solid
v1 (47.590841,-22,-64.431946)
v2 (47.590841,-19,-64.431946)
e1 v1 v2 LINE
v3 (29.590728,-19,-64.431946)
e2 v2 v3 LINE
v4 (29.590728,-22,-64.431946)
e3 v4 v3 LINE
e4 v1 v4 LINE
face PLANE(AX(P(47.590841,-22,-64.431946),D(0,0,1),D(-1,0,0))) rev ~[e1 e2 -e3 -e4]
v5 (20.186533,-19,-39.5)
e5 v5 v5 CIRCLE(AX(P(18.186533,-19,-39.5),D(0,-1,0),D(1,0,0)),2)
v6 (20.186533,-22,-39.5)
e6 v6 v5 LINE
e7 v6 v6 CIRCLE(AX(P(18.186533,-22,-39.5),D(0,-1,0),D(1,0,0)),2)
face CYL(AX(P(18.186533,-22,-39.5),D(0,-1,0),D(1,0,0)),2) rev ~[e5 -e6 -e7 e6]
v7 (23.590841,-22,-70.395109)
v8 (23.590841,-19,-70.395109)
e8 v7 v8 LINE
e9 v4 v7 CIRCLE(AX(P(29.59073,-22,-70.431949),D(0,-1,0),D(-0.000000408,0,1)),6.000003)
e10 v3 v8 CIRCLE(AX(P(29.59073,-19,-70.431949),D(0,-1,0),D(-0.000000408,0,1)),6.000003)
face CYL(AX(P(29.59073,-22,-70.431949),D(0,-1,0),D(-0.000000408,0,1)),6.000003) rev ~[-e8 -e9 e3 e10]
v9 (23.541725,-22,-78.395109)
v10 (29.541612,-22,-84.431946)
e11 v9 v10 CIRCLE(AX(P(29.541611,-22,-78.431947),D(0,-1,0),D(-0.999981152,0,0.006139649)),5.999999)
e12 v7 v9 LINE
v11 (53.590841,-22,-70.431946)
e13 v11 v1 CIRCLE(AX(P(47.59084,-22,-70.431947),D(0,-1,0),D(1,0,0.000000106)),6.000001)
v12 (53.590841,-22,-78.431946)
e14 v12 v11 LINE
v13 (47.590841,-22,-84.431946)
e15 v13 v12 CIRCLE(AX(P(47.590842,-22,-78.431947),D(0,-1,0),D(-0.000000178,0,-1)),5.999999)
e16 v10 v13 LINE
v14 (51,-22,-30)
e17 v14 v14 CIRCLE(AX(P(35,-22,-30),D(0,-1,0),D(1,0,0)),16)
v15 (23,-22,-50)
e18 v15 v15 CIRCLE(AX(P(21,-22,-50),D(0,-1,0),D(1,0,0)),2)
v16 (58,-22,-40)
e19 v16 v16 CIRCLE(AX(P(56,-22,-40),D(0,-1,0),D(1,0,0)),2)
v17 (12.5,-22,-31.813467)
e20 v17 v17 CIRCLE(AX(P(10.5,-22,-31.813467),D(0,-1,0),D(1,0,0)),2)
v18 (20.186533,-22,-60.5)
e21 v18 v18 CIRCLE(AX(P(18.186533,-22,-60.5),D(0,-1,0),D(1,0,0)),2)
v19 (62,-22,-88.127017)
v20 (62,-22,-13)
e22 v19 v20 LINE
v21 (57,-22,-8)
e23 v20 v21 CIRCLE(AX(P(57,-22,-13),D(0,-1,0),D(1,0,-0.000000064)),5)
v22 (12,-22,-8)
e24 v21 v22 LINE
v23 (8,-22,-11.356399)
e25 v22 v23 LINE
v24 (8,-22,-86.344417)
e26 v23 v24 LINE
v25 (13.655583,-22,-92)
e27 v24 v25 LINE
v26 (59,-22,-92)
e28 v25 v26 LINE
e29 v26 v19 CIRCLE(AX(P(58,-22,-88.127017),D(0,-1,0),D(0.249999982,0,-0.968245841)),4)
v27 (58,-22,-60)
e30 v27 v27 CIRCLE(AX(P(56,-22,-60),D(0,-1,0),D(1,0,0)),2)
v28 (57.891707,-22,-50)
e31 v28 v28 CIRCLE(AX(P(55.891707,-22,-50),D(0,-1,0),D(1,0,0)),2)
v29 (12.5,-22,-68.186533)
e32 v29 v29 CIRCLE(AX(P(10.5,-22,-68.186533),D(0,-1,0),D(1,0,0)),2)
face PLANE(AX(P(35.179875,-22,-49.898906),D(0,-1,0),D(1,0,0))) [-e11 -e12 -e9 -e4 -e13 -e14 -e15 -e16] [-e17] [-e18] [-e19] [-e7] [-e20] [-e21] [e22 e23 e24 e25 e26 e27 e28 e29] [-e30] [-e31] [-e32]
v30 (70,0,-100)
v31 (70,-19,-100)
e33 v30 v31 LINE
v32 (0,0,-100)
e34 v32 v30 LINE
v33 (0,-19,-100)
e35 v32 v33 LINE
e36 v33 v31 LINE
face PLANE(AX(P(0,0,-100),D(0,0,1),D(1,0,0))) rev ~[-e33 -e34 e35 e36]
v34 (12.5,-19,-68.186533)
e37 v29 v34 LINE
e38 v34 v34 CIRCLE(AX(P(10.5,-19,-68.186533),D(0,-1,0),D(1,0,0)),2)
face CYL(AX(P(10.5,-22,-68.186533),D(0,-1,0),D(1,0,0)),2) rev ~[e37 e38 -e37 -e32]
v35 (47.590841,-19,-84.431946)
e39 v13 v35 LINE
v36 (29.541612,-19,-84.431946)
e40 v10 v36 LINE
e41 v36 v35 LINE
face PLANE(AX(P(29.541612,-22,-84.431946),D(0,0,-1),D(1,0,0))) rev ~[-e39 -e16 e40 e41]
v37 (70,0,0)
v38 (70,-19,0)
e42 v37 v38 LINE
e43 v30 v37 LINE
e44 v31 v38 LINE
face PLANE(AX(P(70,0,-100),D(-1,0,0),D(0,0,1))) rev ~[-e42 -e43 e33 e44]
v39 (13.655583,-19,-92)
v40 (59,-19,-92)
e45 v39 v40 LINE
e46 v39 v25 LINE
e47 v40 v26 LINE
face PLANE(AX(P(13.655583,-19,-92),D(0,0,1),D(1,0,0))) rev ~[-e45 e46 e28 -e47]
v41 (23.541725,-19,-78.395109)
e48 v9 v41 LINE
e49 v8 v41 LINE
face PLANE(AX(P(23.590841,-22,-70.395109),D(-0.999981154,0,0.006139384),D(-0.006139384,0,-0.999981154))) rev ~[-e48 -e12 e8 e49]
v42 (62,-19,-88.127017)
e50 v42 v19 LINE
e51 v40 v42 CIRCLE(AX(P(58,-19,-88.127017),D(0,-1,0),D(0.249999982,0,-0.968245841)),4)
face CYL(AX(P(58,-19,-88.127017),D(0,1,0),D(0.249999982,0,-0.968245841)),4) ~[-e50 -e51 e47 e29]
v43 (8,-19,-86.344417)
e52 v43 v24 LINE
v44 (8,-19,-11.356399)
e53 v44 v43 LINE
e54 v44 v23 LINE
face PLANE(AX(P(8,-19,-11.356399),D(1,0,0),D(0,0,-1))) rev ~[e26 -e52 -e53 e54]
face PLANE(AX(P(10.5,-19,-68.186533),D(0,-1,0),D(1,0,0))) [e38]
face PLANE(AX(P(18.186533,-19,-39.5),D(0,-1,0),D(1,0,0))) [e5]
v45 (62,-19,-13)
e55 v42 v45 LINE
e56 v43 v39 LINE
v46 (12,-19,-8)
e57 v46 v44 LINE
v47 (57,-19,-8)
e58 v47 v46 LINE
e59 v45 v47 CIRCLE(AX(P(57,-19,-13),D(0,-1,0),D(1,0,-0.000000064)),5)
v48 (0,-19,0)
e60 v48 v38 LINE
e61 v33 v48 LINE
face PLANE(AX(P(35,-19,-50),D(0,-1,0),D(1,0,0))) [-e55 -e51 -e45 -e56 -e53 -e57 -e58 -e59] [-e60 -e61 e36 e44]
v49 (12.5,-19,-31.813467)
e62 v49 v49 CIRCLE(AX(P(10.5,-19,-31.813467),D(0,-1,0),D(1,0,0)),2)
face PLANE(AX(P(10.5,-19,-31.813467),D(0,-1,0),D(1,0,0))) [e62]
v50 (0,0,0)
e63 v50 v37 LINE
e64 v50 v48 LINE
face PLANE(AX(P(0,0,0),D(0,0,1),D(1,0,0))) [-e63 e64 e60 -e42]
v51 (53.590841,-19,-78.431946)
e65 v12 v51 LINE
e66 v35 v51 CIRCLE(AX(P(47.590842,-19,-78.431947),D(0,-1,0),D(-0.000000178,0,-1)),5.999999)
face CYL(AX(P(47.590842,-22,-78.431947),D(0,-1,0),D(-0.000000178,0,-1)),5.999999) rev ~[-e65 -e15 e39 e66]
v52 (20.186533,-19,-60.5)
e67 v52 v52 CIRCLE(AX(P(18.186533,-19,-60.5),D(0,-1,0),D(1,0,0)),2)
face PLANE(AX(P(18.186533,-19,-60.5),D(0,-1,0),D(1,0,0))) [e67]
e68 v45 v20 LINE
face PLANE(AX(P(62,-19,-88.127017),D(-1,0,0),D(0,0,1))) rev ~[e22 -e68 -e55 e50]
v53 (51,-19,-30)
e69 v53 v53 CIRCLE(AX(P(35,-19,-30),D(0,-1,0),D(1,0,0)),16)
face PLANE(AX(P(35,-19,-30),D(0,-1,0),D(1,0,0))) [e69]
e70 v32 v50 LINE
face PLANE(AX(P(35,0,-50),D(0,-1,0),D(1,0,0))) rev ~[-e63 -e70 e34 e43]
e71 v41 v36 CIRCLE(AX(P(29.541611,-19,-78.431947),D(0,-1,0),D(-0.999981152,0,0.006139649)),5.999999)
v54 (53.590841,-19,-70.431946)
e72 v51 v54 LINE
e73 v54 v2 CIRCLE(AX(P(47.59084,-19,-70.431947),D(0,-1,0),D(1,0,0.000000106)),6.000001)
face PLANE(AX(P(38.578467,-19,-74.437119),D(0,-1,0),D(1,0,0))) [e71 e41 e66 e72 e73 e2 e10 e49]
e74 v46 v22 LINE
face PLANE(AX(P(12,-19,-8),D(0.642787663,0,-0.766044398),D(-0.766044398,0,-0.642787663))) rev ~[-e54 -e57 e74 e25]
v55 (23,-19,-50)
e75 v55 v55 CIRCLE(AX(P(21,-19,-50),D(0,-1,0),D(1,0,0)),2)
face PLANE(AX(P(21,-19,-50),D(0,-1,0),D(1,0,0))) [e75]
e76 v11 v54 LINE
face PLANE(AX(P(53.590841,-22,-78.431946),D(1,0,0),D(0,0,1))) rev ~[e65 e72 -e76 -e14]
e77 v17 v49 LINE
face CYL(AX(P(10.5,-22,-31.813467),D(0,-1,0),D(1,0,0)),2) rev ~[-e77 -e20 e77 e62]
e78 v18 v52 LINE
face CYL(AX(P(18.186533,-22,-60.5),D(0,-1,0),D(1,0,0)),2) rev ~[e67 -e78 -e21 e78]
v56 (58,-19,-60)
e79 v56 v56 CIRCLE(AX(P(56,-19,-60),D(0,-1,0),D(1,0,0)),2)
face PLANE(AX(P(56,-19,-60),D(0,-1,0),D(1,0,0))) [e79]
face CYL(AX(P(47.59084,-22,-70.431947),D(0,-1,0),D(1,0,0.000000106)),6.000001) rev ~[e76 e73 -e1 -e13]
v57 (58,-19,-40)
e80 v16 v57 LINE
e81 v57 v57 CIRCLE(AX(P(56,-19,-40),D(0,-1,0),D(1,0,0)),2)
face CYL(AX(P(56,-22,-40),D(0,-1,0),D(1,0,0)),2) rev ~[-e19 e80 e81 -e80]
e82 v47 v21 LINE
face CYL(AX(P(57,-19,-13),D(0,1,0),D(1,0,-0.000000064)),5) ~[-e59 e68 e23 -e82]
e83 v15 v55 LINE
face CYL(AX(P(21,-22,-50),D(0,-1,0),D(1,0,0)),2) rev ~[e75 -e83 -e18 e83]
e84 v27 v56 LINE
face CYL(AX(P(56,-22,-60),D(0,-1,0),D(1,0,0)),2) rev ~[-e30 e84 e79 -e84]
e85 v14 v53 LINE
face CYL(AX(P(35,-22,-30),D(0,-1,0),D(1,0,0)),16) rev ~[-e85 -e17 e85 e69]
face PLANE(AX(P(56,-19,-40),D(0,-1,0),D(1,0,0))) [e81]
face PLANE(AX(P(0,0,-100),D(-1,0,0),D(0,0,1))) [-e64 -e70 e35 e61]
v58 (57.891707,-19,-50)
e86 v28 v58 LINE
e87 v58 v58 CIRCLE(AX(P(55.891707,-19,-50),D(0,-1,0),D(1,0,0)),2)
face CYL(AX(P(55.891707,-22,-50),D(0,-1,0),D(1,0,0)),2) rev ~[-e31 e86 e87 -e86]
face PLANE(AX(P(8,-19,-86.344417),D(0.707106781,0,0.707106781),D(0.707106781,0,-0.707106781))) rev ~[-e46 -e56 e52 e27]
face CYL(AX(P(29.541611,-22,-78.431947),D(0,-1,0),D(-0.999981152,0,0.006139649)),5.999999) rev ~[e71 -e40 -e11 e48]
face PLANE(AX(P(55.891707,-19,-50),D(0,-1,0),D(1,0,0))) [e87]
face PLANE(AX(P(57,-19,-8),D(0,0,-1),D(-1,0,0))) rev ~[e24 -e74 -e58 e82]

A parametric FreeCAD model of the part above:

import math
import FreeCAD as App
import Part
import Sketcher

V = App.Vector
Q = App.Units.Quantity


def add_polygon(sketch, points):
    """Adds a closed chain of lines whose ends are joined by coincident constraints."""
    first, n = sketch.GeometryCount, len(points)
    for a, b in zip(points, points[1:] + points[:1]):
        sketch.addGeometry(Part.LineSegment(App.Vector(*a, 0), App.Vector(*b, 0)), False)
    for i in range(n):
        sketch.addConstraint(Sketcher.Constraint("Coincident", first + i, 2, first + (i + 1) % n, 1))

doc = App.newDocument("Part")
body = doc.addObject("PartDesign::Body", "Body")

# Sketch on XZ plane
sketch1 = body.newObject("Sketcher::SketchObject", "Sketch")
sketch1.AttachmentSupport = (doc.getObject("XZ_Plane"), [""])
sketch1.MapMode = "FlatFace"
add_polygon(sketch1, [(0, 0), (0, -100), (70, -100), (70, 0)])  # lines 0-3
sketch1.addConstraint([
    Sketcher.Constraint("Vertical", 0),
    Sketcher.Constraint("Horizontal", 1),
    Sketcher.Constraint("Vertical", 2),
    Sketcher.Constraint("Horizontal", 3),
    Sketcher.Constraint("Coincident", 3, 2, -1, 1),
    Sketcher.Constraint("DistanceX", 1, 1, 1, 2, 70.0),
    Sketcher.Constraint("DistanceY", 0, 2, 0, 1, 100.0),
])
pad1 = body.newObject("PartDesign::Pad", "Pad")
pad1.Profile = sketch1
pad1.Length = 19

# Sketch on XZ plane
sketch2 = body.newObject("Sketcher::SketchObject", "Sketch001")
sketch2.AttachmentSupport = (doc.getObject("XZ_Plane"), [""])
sketch2.MapMode = "FlatFace"
sketch2.AttachmentOffset = App.Placement(V(0, 0, 19), App.Rotation())
sketch2.addGeometry([
    Part.LineSegment(V(57, -8, 0), V(12, -8, 0)),  # 0
    Part.LineSegment(V(12, -8, 0), V(8, -11.4, 0)),  # 1
    Part.LineSegment(V(8, -11.4, 0), V(8, -86.3, 0)),  # 2
    Part.LineSegment(V(8, -86.3, 0), V(13.7, -92, 0)),  # 3
    Part.LineSegment(V(13.7, -92, 0), V(59, -92, 0)),  # 4
    Part.ArcOfCircle(Part.Circle(V(58, -88.1, 0), V(0, 0, 1), 4), math.radians(-76), math.radians(0)),  # 5
    Part.LineSegment(V(62, -88.1, 0), V(62, -13, 0)),  # 6
    Part.ArcOfCircle(Part.Circle(V(57, -13, 0), V(0, 0, 1), 5), math.radians(0), math.radians(90)),  # 7
], False)
sketch2.addConstraint([
    Sketcher.Constraint("Coincident", 0, 2, 1, 1),
    Sketcher.Constraint("Coincident", 1, 2, 2, 1),
    Sketcher.Constraint("Coincident", 2, 2, 3, 1),
    Sketcher.Constraint("Coincident", 3, 2, 4, 1),
    Sketcher.Constraint("Coincident", 4, 2, 5, 1),
    Sketcher.Constraint("Tangent", 5, 2, 6, 1),
    Sketcher.Constraint("Tangent", 6, 2, 7, 1),
    Sketcher.Constraint("Tangent", 7, 2, 0, 1),
    Sketcher.Constraint("Horizontal", 0),
    Sketcher.Constraint("Vertical", 2),
    Sketcher.Constraint("Horizontal", 4),
    Sketcher.Constraint("Vertical", 6),
    Sketcher.Constraint("Radius", 5, 4.0),
    Sketcher.Constraint("Radius", 7, 5.0),
    Sketcher.Constraint("DistanceX", 0, 2, 0, 1, 45.0),
    Sketcher.Constraint("Angle", 1, Q("-139.999996 deg")),
    Sketcher.Constraint("Angle", 3, Q("-45 deg")),
    Sketcher.Constraint("DistanceX", -1, 1, 5, 3, 58.0),
    Sketcher.Constraint("DistanceY", 7, 3, -1, 1, 13.0),
    Sketcher.Constraint("DistanceX", -1, 1, 1, 2, 8.0),
    Sketcher.Constraint("DistanceY", 3, 2, -1, 1, 92.0),
    Sketcher.Constraint("DistanceX", -1, 1, 4, 2, 59.0),
    Sketcher.Constraint("DistanceY", 2, 2, 2, 1, 74.988018),
])
pad2 = body.newObject("PartDesign::Pad", "Pad001")
pad2.Profile = sketch2
pad2.Length = 3

# Sketch on XZ plane
sketch3 = body.newObject("Sketcher::SketchObject", "Sketch002")
sketch3.AttachmentSupport = (doc.getObject("XZ_Plane"), [""])
sketch3.MapMode = "FlatFace"
sketch3.AttachmentOffset = App.Placement(V(0, 0, 22), App.Rotation())
sketch3.addGeometry(Part.Circle(V(35, -30, 0), V(0, 0, 1), 16), False)
sketch3.addConstraint([
    Sketcher.Constraint("Diameter", 0, 32.0),
    Sketcher.Constraint("DistanceX", -1, 1, 0, 3, 35.0),
    Sketcher.Constraint("DistanceY", 0, 3, -1, 1, 30.0),
])
pocket1 = body.newObject("PartDesign::Pocket", "Pocket")
pocket1.Profile = sketch3
pocket1.Length = 3

# Sketch on XZ plane
sketch4 = body.newObject("Sketcher::SketchObject", "Sketch003")
sketch4.AttachmentSupport = (doc.getObject("XZ_Plane"), [""])
sketch4.MapMode = "FlatFace"
sketch4.AttachmentOffset = App.Placement(V(0, 0, 22), App.Rotation())
sketch4.addGeometry([
    Part.LineSegment(V(48, -64, 0), V(30, -64, 0)),  # 0
    Part.ArcOfCircle(Part.Circle(V(30, -70, 0), V(0, 0, 1), 6), math.radians(90), math.radians(180)),  # 1
    Part.LineSegment(V(24, -70, 0), V(24, -78, 0)),  # 2
    Part.ArcOfCircle(Part.Circle(V(30, -78, 0), V(0, 0, 1), 6), math.radians(180), math.radians(270)),  # 3
    Part.LineSegment(V(30, -84, 0), V(48, -84, 0)),  # 4
    Part.ArcOfCircle(Part.Circle(V(48, -78, 0), V(0, 0, 1), 6), math.radians(-90), math.radians(0)),  # 5
    Part.LineSegment(V(54, -78, 0), V(54, -70, 0)),  # 6
    Part.ArcOfCircle(Part.Circle(V(48, -70, 0), V(0, 0, 1), 6), math.radians(0), math.radians(90)),  # 7
], False)
sketch4.addConstraint([
    Sketcher.Constraint("Tangent", 0, 2, 1, 1),
    Sketcher.Constraint("Tangent", 1, 2, 2, 1),
    Sketcher.Constraint("Tangent", 2, 2, 3, 1),
    Sketcher.Constraint("Tangent", 3, 2, 4, 1),
    Sketcher.Constraint("Tangent", 4, 2, 5, 1),
    Sketcher.Constraint("Tangent", 5, 2, 6, 1),
    Sketcher.Constraint("Tangent", 6, 2, 7, 1),
    Sketcher.Constraint("Tangent", 7, 2, 0, 1),
    Sketcher.Constraint("Horizontal", 0),
    Sketcher.Constraint("Horizontal", 4),
    Sketcher.Constraint("Vertical", 6),
    Sketcher.Constraint("Equal", 3, 5),
    Sketcher.Constraint("Equal", 5, 7),
    Sketcher.Constraint("Horizontal", 1, 3, 7, 3),
    Sketcher.Constraint("Radius", 3, 5.999999),
    Sketcher.Constraint("DistanceY", 6, 1, 6, 2, 8.0),
    Sketcher.Constraint("DistanceX", 1, 2, 7, 3, 23.999999),
    Sketcher.Constraint("DistanceX", 4, 1, 4, 2, 18.049229),
    Sketcher.Constraint("DistanceX", -1, 1, 1, 3, 29.59073),
    Sketcher.Constraint("DistanceY", 1, 3, -1, 1, 70.431949),
])
pocket2 = body.newObject("PartDesign::Pocket", "Pocket001")
pocket2.Profile = sketch4
pocket2.Length = 3

# Sketch on XZ plane
sketch5 = body.newObject("Sketcher::SketchObject", "Sketch004")
sketch5.AttachmentSupport = (doc.getObject("XZ_Plane"), [""])
sketch5.MapMode = "FlatFace"
sketch5.AttachmentOffset = App.Placement(V(0, 0, 22), App.Rotation())
sketch5.addGeometry([
    Part.Circle(V(10.5, -31.8, 0), V(0, 0, 1), 2),  # 0
    Part.Circle(V(18.2, -39.5, 0), V(0, 0, 1), 2),  # 1
    Part.Circle(V(21, -50, 0), V(0, 0, 1), 2),  # 2
    Part.Circle(V(18.2, -60.5, 0), V(0, 0, 1), 2),  # 3
    Part.Circle(V(10.5, -68.2, 0), V(0, 0, 1), 2),  # 4
], False)
sketch5.addConstraint([
    Sketcher.Constraint("Equal", 0, 1),
    Sketcher.Constraint("Equal", 1, 2),
    Sketcher.Constraint("Equal", 2, 3),
    Sketcher.Constraint("Equal", 3, 4),
    Sketcher.Constraint("Vertical", 1, 3, 3, 3),
    Sketcher.Constraint("Vertical", 0, 3, 4, 3),
    Sketcher.Constraint("Diameter", 0, 4.0),
    Sketcher.Constraint("DistanceX", -1, 1, 2, 3, 21.0),
    Sketcher.Constraint("DistanceY", 2, 3, -1, 1, 50.0),
    Sketcher.Constraint("DistanceY", 3, 3, 1, 3, 21.0),
    Sketcher.Constraint("DistanceX", -1, 1, 0, 3, 10.5),
    Sketcher.Constraint("DistanceY", 1, 3, -1, 1, 39.5),
    Sketcher.Constraint("DistanceY", 0, 3, -1, 1, 31.813467),
    Sketcher.Constraint("DistanceX", -1, 1, 1, 3, 18.186533),
    Sketcher.Constraint("DistanceY", 4, 3, -1, 1, 68.186533),
])
pocket3 = body.newObject("PartDesign::Pocket", "Pocket002")
pocket3.Profile = sketch5
pocket3.Length = 3

# Sketch on XZ plane
sketch6 = body.newObject("Sketcher::SketchObject", "Sketch005")
sketch6.AttachmentSupport = (doc.getObject("XZ_Plane"), [""])
sketch6.MapMode = "FlatFace"
sketch6.AttachmentOffset = App.Placement(V(0, 0, 22), App.Rotation())
sketch6.addGeometry([
    Part.Circle(V(56, -40, 0), V(0, 0, 1), 2),
    Part.Circle(V(55.9, -50, 0), V(0, 0, 1), 2),
    Part.Circle(V(56, -60, 0), V(0, 0, 1), 2),
], False)
sketch6.addConstraint([
    Sketcher.Constraint("Equal", 0, 1),
    Sketcher.Constraint("Equal", 1, 2),
    Sketcher.Constraint("Vertical", 0, 3, 2, 3),
    Sketcher.Constraint("Diameter", 0, 4.0),
    Sketcher.Constraint("DistanceX", -1, 1, 0, 3, 56.0),
    Sketcher.Constraint("DistanceY", 0, 3, -1, 1, 40.0),
    Sketcher.Constraint("DistanceY", 1, 3, -1, 1, 50.0),
    Sketcher.Constraint("DistanceY", 2, 3, -1, 1, 60.0),
    Sketcher.Constraint("DistanceX", -1, 1, 1, 3, 55.891707),
])
pocket4 = body.newObject("PartDesign::Pocket", "Pocket003")
pocket4.Profile = sketch6
pocket4.Length = 3

doc.recompute()
